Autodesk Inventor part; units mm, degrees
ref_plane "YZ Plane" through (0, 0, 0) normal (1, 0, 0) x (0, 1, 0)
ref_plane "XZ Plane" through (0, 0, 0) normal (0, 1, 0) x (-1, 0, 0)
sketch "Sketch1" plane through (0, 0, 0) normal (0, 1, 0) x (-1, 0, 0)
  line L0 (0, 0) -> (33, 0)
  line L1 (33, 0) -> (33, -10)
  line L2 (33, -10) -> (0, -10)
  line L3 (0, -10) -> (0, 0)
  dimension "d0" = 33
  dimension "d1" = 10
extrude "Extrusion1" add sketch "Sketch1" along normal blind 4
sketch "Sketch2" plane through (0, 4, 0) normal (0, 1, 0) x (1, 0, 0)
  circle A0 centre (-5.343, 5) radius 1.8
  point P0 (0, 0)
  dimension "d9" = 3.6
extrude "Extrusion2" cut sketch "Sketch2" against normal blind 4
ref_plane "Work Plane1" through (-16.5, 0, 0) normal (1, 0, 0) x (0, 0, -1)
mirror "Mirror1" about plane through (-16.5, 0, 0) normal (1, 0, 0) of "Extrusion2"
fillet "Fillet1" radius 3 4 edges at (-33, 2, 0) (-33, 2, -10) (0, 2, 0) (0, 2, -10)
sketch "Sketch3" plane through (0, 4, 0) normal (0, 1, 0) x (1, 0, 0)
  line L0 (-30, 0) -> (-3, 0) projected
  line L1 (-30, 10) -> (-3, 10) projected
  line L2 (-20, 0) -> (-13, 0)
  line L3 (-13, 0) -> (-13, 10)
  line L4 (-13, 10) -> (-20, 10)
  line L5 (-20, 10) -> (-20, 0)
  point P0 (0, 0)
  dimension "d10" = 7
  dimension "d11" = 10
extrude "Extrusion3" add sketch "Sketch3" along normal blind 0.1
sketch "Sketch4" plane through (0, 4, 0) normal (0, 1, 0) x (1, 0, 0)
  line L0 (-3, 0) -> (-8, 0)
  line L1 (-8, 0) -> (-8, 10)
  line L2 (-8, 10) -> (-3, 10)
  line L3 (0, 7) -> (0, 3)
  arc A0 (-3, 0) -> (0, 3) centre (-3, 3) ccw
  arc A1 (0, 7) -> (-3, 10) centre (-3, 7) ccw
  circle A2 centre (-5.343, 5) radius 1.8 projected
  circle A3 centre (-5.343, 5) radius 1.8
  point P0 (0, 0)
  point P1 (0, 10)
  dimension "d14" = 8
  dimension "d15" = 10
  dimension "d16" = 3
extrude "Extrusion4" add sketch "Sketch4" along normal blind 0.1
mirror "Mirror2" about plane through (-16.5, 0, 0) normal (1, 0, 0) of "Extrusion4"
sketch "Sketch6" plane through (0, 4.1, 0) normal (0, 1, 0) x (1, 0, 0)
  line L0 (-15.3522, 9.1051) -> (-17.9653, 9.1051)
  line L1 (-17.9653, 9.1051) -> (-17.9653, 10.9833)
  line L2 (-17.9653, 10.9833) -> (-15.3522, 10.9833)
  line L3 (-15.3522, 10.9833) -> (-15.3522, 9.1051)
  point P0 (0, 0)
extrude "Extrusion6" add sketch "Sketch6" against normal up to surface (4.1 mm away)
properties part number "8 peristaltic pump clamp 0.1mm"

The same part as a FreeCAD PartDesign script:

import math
import FreeCAD as App
import Part
import Sketcher
from FreeCAD import Vector


def edges_at(feature, points):
    """Names of the edges that pass closest to the given points."""
    edges = feature.Shape.Edges
    near = lambda p: min(range(len(edges)), key=lambda i: edges[i].distToShape(Part.Vertex(*p))[0])
    return sorted({f"Edge{near(p) + 1}" for p in points})


def add_polygon(sketch, points):
    """Adds a closed chain of lines whose ends are joined by coincident constraints."""
    first, n = sketch.GeometryCount, len(points)
    for a, b in zip(points, points[1:] + points[:1]):
        sketch.addGeometry(Part.LineSegment(App.Vector(*a, 0), App.Vector(*b, 0)), False)
    for i in range(n):
        sketch.addConstraint(Sketcher.Constraint("Coincident", first + i, 2, first + (i + 1) % n, 1))

doc = App.newDocument("Part")
body = doc.addObject("PartDesign::Body", "Body")

# Sketch on XZ plane
sketch1 = body.newObject("Sketcher::SketchObject", "Sketch")
sketch1.AttachmentSupport = (doc.getObject("XZ_Plane"), [""])
sketch1.MapMode = "FlatFace"
add_polygon(sketch1, [(-33, 0), (0, 0), (0, -10), (-33, -10)])  # lines 0-3
sketch1.addConstraint([
    Sketcher.Constraint("Horizontal", 0),
    Sketcher.Constraint("Vertical", 1),
    Sketcher.Constraint("Horizontal", 2),
    Sketcher.Constraint("Vertical", 3),
    Sketcher.Constraint("Coincident", 0, 2, -1, 1),
    Sketcher.Constraint("DistanceX", 0, 1, 0, 2, 33.0),
    Sketcher.Constraint("DistanceY", 1, 2, 1, 1, 10.0),
])
pad1 = body.newObject("PartDesign::Pad", "Pad")
pad1.Profile = sketch1
pad1.Length = 4
pad1.Reversed = True

# Sketch on XZ plane
sketch2 = body.newObject("Sketcher::SketchObject", "Sketch001")
sketch2.AttachmentSupport = (doc.getObject("XZ_Plane"), [""])
sketch2.MapMode = "FlatFace"
sketch2.AttachmentOffset = App.Placement(Vector(0, 0, -4), App.Rotation())
sketch2.addGeometry(Part.Circle(Vector(-5.3, -5, 0), Vector(0, 0, 1), 1.8), False)
sketch2.addConstraint([
    Sketcher.Constraint("Diameter", 0, 3.6),
    Sketcher.Constraint("DistanceY", 0, 3, -1, 1, 5.0),
    Sketcher.Constraint("DistanceX", 0, 3, -1, 1, 5.343),
])
pocket1 = body.newObject("PartDesign::Pocket", "Pocket")
pocket1.Profile = sketch2
pocket1.Length = 4
pocket1.Reversed = True
doc.recompute()

datumplane = body.newObject("PartDesign::Plane", "DatumPlane")
datumplane.AttachmentSupport = (doc.getObject("YZ_Plane"), [""])
datumplane.MapMode = "FlatFace"
datumplane.AttachmentOffset = App.Placement(Vector(0, 0, -16.5), App.Rotation())
mirrored = body.newObject("PartDesign::Mirrored", "Mirrored")
mirrored.Originals = [pocket1]
mirrored.MirrorPlane = (datumplane, [""])
body.Tip = mirrored
doc.recompute()

fillet = body.newObject("PartDesign::Fillet", "Fillet")
fillet.Base = (mirrored, edges_at(mirrored, [
    (-33, 2, 0),
    (-33, 2, -10),
    (0, 2, 0),
    (0, 2, -10),
]))
fillet.Radius = 3

# Sketch on XZ plane
sketch3 = body.newObject("Sketcher::SketchObject", "Sketch002")
sketch3.AttachmentSupport = (doc.getObject("XZ_Plane"), [""])
sketch3.MapMode = "FlatFace"
sketch3.AttachmentOffset = App.Placement(Vector(0, 0, -4), App.Rotation())
add_polygon(sketch3, [(-20, -10), (-20, 0), (-13, 0), (-13, -10)])  # lines 0-3
sketch3.addConstraint([
    Sketcher.Constraint("Vertical", 0),
    Sketcher.Constraint("Horizontal", 1),
    Sketcher.Constraint("Vertical", 2),
    Sketcher.Constraint("Horizontal", 3),
    Sketcher.Constraint("PointOnObject", 0, 2, -1),
    Sketcher.Constraint("DistanceX", 1, 1, 1, 2, 7.0),
    Sketcher.Constraint("DistanceY", 0, 1, 0, 2, 10.0),
    Sketcher.Constraint("DistanceX", 0, 2, -1, 1, 20.0),
])
pad2 = body.newObject("PartDesign::Pad", "Pad001")
pad2.Profile = sketch3
pad2.Length = 0.1
pad2.Reversed = True

# Sketch on XZ plane
sketch4 = body.newObject("Sketcher::SketchObject", "Sketch003")
sketch4.AttachmentSupport = (doc.getObject("XZ_Plane"), [""])
sketch4.MapMode = "FlatFace"
sketch4.AttachmentOffset = App.Placement(Vector(0, 0, -4), App.Rotation())
sketch4.addGeometry([
    Part.LineSegment(Vector(-8, 0, 0), Vector(-3, 0, 0)),  # 0
    Part.ArcOfCircle(Part.Circle(Vector(-3, -3, 0), Vector(0, 0, 1), 3), math.radians(0), math.radians(90)),  # 1
    Part.LineSegment(Vector(0, -3, 0), Vector(0, -7, 0)),  # 2
    Part.ArcOfCircle(Part.Circle(Vector(-3, -7, 0), Vector(0, 0, 1), 3), math.radians(-90), math.radians(0)),  # 3
    Part.LineSegment(Vector(-3, -10, 0), Vector(-8, -10, 0)),  # 4
    Part.LineSegment(Vector(-8, -10, 0), Vector(-8, 0, 0)),  # 5
    Part.Circle(Vector(-5.3, -5, 0), Vector(0, 0, 1), 1.8),  # 6
], False)
sketch4.addConstraint([
    Sketcher.Constraint("Tangent", 0, 2, 1, 2),
    Sketcher.Constraint("Tangent", 1, 1, 2, 1),
    Sketcher.Constraint("Tangent", 2, 2, 3, 2),
    Sketcher.Constraint("Tangent", 3, 1, 4, 1),
    Sketcher.Constraint("Coincident", 4, 2, 5, 1),
    Sketcher.Constraint("Coincident", 5, 2, 0, 1),
    Sketcher.Constraint("Horizontal", 0),
    Sketcher.Constraint("Vertical", 2),
    Sketcher.Constraint("Horizontal", 4),
    Sketcher.Constraint("Vertical", 5),
    Sketcher.Constraint("Equal", 1, 3),
    Sketcher.Constraint("PointOnObject", 0, 2, -1),
    Sketcher.Constraint("PointOnObject", 1, 1, -2),
    Sketcher.Constraint("Radius", 1, 3.0),
    Sketcher.Constraint("DistanceY", 5, 1, 5, 2, 10.0),
    Sketcher.Constraint("DistanceX", 4, 2, -1, 1, 8.0),
    Sketcher.Constraint("Diameter", 6, 3.6),
    Sketcher.Constraint("DistanceY", 6, 3, -1, 1, 5.0),
    Sketcher.Constraint("DistanceX", 6, 3, -1, 1, 5.343),
])
pad3 = body.newObject("PartDesign::Pad", "Pad002")
pad3.Profile = sketch4
pad3.Length = 0.1
pad3.Reversed = True
doc.recompute()

datumplane2 = body.newObject("PartDesign::Plane", "DatumPlane001")
datumplane2.AttachmentSupport = (doc.getObject("YZ_Plane"), [""])
datumplane2.MapMode = "FlatFace"
datumplane2.AttachmentOffset = App.Placement(Vector(0, 0, -16.5), App.Rotation())
mirrored2 = body.newObject("PartDesign::Mirrored", "Mirrored001")
mirrored2.Originals = [pad3]
mirrored2.MirrorPlane = (datumplane2, [""])
body.Tip = mirrored2

# Sketch on XZ plane
sketch5 = body.newObject("Sketcher::SketchObject", "Sketch004")
sketch5.AttachmentSupport = (doc.getObject("XZ_Plane"), [""])
sketch5.MapMode = "FlatFace"
sketch5.AttachmentOffset = App.Placement(Vector(0, 0, -4.1), App.Rotation())
add_polygon(sketch5, [(-18, -9.1), (-15.4, -9.1), (-15.4, -11), (-18, -11)])  # lines 0-3
sketch5.addConstraint([
    Sketcher.Constraint("Horizontal", 0),
    Sketcher.Constraint("Vertical", 1),
    Sketcher.Constraint("Horizontal", 2),
    Sketcher.Constraint("Vertical", 3),
    Sketcher.Constraint("DistanceX", 0, 1, 0, 2, 2.613),
    Sketcher.Constraint("DistanceY", 1, 2, 1, 1, 1.8782),
    Sketcher.Constraint("DistanceY", 0, 2, -1, 1, 9.105),
    Sketcher.Constraint("DistanceX", 0, 2, -1, 1, 15.3522),
])
pad4 = body.newObject("PartDesign::Pad", "Pad003")
pad4.Profile = sketch5
pad4.Length = 4.1

doc.recompute()
